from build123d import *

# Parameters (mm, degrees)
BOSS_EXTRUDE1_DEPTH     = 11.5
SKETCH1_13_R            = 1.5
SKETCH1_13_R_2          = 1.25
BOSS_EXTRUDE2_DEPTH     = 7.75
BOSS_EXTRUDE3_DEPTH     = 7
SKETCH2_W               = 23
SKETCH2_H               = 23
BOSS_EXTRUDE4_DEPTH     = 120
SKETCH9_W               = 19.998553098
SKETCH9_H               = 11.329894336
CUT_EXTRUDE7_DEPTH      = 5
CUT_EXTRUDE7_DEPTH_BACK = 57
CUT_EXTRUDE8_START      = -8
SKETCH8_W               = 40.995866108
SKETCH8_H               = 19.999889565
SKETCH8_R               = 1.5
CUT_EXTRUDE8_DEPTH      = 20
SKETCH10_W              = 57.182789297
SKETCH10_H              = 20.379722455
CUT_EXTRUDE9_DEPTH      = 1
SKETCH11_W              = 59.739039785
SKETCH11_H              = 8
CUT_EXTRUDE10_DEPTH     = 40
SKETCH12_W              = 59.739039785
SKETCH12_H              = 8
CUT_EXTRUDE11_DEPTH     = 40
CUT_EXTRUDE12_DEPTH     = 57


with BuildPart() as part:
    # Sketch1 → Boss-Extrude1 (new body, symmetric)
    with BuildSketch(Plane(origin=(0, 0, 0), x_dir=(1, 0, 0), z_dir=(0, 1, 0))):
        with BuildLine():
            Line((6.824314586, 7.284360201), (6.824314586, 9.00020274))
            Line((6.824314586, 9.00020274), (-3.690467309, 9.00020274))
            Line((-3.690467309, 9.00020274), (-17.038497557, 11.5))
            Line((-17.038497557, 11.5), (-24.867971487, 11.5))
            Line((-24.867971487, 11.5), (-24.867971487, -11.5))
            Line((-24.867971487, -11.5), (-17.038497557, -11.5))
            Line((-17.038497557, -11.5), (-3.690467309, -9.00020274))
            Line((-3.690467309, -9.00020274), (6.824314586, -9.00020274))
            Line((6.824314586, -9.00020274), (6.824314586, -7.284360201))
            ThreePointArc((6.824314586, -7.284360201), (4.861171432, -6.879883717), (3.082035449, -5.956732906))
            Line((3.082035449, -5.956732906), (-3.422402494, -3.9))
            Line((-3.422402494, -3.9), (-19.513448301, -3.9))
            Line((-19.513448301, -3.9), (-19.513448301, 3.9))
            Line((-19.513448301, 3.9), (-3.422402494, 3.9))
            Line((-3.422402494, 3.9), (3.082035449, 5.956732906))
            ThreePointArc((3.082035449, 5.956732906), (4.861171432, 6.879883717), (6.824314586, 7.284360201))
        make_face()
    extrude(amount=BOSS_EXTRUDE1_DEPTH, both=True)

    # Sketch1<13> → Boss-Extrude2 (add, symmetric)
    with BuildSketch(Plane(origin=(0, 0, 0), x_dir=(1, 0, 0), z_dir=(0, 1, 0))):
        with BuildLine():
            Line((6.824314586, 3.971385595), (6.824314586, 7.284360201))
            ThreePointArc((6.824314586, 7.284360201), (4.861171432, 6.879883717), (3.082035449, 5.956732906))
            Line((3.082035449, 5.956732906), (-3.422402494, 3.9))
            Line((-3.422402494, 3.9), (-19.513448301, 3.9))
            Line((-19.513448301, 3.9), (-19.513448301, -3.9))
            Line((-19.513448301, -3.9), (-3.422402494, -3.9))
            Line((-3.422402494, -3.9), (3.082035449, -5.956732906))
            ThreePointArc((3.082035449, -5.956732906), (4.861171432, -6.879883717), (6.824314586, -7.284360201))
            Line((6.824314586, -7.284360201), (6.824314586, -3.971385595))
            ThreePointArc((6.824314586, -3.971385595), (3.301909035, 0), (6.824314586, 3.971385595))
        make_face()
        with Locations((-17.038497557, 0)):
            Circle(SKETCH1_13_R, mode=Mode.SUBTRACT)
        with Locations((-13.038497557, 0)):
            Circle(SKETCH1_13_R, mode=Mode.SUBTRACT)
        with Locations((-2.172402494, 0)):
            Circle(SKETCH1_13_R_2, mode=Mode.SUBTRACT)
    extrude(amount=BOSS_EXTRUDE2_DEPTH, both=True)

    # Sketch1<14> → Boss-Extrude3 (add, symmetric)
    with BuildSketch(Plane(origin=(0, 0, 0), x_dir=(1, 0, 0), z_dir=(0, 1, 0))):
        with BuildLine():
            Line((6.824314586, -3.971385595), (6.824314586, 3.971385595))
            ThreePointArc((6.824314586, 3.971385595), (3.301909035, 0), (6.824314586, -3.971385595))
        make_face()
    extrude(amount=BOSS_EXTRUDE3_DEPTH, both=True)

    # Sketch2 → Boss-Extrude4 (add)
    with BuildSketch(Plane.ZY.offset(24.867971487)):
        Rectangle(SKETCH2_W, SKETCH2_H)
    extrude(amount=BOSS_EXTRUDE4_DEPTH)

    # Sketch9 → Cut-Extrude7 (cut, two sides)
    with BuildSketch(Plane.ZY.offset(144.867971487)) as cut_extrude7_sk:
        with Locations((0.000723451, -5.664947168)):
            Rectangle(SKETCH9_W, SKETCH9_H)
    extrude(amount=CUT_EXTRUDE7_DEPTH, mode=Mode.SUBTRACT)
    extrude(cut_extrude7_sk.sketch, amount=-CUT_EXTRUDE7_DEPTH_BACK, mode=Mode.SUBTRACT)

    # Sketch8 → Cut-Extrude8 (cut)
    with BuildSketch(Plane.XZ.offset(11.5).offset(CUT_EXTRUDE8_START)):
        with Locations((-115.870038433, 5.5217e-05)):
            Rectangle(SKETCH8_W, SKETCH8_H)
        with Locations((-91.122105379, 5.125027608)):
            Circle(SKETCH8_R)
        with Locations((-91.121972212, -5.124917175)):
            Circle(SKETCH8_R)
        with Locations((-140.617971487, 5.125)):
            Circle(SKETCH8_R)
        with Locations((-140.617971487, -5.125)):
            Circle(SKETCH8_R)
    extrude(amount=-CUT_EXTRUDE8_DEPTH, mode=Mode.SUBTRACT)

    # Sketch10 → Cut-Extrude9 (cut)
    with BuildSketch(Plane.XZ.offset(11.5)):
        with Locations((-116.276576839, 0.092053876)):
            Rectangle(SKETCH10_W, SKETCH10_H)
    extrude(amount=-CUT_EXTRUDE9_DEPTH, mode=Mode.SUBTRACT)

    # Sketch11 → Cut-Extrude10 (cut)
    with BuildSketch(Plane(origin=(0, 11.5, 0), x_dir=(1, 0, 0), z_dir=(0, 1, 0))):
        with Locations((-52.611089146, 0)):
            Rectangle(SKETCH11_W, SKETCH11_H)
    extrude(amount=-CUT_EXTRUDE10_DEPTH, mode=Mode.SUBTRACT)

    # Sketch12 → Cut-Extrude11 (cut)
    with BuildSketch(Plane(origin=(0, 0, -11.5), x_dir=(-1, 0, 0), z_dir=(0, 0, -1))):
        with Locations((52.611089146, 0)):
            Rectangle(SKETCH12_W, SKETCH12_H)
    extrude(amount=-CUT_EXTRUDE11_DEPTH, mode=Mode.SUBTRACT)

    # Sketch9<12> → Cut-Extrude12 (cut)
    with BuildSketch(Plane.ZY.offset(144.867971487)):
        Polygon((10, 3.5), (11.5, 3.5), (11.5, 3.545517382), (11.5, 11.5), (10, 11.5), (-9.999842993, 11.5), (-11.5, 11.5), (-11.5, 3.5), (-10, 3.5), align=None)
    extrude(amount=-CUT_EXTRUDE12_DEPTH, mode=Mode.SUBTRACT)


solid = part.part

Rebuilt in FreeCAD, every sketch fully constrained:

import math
import FreeCAD as App
import Part
import Sketcher
from FreeCAD import Vector
Q = App.Units.Quantity

doc = App.newDocument("Part")
body = doc.addObject("PartDesign::Body", "Body")

sketch1 = body.newObject("Sketcher::SketchObject", "Sketch")
sketch1.AttachmentSupport = (doc.getObject("XZ_Plane"), [""])
sketch1.MapMode = "FlatFace"
sketch1.addGeometry([
    Part.LineSegment(Vector(6.824315, -7.28436, 0), Vector(6.824315, -9.000203, 0)),
    Part.LineSegment(Vector(6.824315, -9.000203, 0), Vector(-3.690467, -9.000203, 0)),
    Part.LineSegment(Vector(-3.690467, -9.000203, 0), Vector(-17.038498, -11.5, 0)),
    Part.LineSegment(Vector(-17.038498, -11.5, 0), Vector(-24.867971, -11.5, 0)),
    Part.LineSegment(Vector(-24.867971, -11.5, 0), Vector(-24.867971, 11.5, 0)),
    Part.LineSegment(Vector(-24.867971, 11.5, 0), Vector(-17.038498, 11.5, 0)),
    Part.LineSegment(Vector(-17.038498, 11.5, 0), Vector(-3.690467, 9.000203, 0)),
    Part.LineSegment(Vector(-3.690467, 9.000203, 0), Vector(6.824315, 9.000203, 0)),
    Part.LineSegment(Vector(6.824315, 9.000203, 0), Vector(6.824315, 7.28436, 0)),
    Part.ArcOfCircle(Part.Circle(Vector(7.301909, 0, 0), Vector(0, 0, 1), 7.3), math.radians(93.751192), math.radians(125.314551)),
    Part.LineSegment(Vector(3.082035, 5.956733, 0), Vector(-3.422402, 3.9, 0)),
    Part.LineSegment(Vector(-3.422402, 3.9, 0), Vector(-19.513448, 3.9, 0)),
    Part.LineSegment(Vector(-19.513448, 3.9, 0), Vector(-19.513448, -3.9, 0)),
    Part.LineSegment(Vector(-19.513448, -3.9, 0), Vector(-3.422402, -3.9, 0)),
    Part.LineSegment(Vector(-3.422402, -3.9, 0), Vector(3.082035, -5.956733, 0)),
    Part.ArcOfCircle(Part.Circle(Vector(7.301909, 0, 0), Vector(0, 0, 1), 7.3), math.radians(-125.314551), math.radians(-93.751192)),
], False)
sketch1.addConstraint([
    Sketcher.Constraint("Coincident", 0, 2, 1, 1),
    Sketcher.Constraint("Coincident", 1, 2, 2, 1),
    Sketcher.Constraint("Coincident", 2, 2, 3, 1),
    Sketcher.Constraint("Coincident", 3, 2, 4, 1),
    Sketcher.Constraint("Coincident", 4, 2, 5, 1),
    Sketcher.Constraint("Coincident", 5, 2, 6, 1),
    Sketcher.Constraint("Coincident", 6, 2, 7, 1),
    Sketcher.Constraint("Coincident", 7, 2, 8, 1),
    Sketcher.Constraint("Coincident", 8, 2, 9, 1),
    Sketcher.Constraint("Coincident", 9, 2, 10, 1),
    Sketcher.Constraint("Coincident", 10, 2, 11, 1),
    Sketcher.Constraint("Coincident", 11, 2, 12, 1),
    Sketcher.Constraint("Coincident", 12, 2, 13, 1),
    Sketcher.Constraint("Coincident", 13, 2, 14, 1),
    Sketcher.Constraint("Coincident", 14, 2, 15, 1),
    Sketcher.Constraint("Coincident", 15, 2, 0, 1),
    Sketcher.Constraint("Vertical", 0),
    Sketcher.Constraint("Horizontal", 1),
    Sketcher.Constraint("Horizontal", 3),
    Sketcher.Constraint("Vertical", 4),
    Sketcher.Constraint("Horizontal", 5),
    Sketcher.Constraint("Horizontal", 7),
    Sketcher.Constraint("Vertical", 8),
    Sketcher.Constraint("Horizontal", 11),
    Sketcher.Constraint("Vertical", 12),
    Sketcher.Constraint("Horizontal", 13),
    Sketcher.Constraint("Coincident", 15, 3, 9, 3),
    Sketcher.Constraint("Equal", 9, 15),
    Sketcher.Constraint("Symmetric", 2, 2, 5, 2, -1),
    Sketcher.Constraint("Symmetric", 1, 2, 6, 2, -1),
    Sketcher.Constraint("Symmetric", 10, 2, 13, 2, -1),
    Sketcher.Constraint("Symmetric", 9, 2, 14, 2, -1),
    Sketcher.Constraint("Vertical", 0, 2, 7, 2),
    Sketcher.Constraint("Radius", 9, Q("7.3 mm")),
    Sketcher.Constraint("DistanceY", 4, 1, 4, 2, Q("23 mm")),
    Sketcher.Constraint("DistanceY", 12, 2, 12, 1, Q("7.8 mm")),
    Sketcher.Constraint("DistanceX", 1, 2, 1, 1, Q("10.514782 mm")),
    Sketcher.Constraint("Distance", 2, Q("13.580092 mm")),
    Sketcher.Constraint("DistanceX", 3, 2, 3, 1, Q("7.829474 mm")),
    Sketcher.Constraint("DistanceX", 11, 2, 11, 1, Q("16.091046 mm")),
    Sketcher.Constraint("DistanceY", 0, 2, 0, 1, Q("1.715843 mm")),
    Sketcher.Constraint("DistanceX", -1, 1, 9, 3, Q("7.301909 mm")),
    Sketcher.Constraint("DistanceX", 3, 2, -1, 1, Q("24.867971 mm")),
    Sketcher.Constraint("DistanceX", 11, 2, -1, 1, Q("19.513448 mm")),
    Sketcher.Constraint("DistanceX", 9, 2, 8, 2, Q("3.742279 mm")),
])
pad1 = body.newObject("PartDesign::Pad", "Pad")
pad1.Profile = sketch1
pad1.Length = 23
pad1.Midplane = True

sketch2 = body.newObject("Sketcher::SketchObject", "Sketch001")
sketch2.AttachmentSupport = (doc.getObject("XZ_Plane"), [""])
sketch2.MapMode = "FlatFace"
sketch2.addGeometry([
    Part.LineSegment(Vector(6.824315, -3.971386, 0), Vector(6.824315, -7.28436, 0)),
    Part.ArcOfCircle(Part.Circle(Vector(7.301909, 0, 0), Vector(0, 0, 1), 7.3), math.radians(-125.314551), math.radians(-93.751192)),
    Part.LineSegment(Vector(3.082035, -5.956733, 0), Vector(-3.422402, -3.9, 0)),
    Part.LineSegment(Vector(-3.422402, -3.9, 0), Vector(-19.513448, -3.9, 0)),
    Part.LineSegment(Vector(-19.513448, -3.9, 0), Vector(-19.513448, 3.9, 0)),
    Part.LineSegment(Vector(-19.513448, 3.9, 0), Vector(-3.422402, 3.9, 0)),
    Part.LineSegment(Vector(-3.422402, 3.9, 0), Vector(3.082035, 5.956733, 0)),
    Part.ArcOfCircle(Part.Circle(Vector(7.301909, 0, 0), Vector(0, 0, 1), 7.3), math.radians(93.751192), math.radians(125.314551)),
    Part.LineSegment(Vector(6.824315, 7.28436, 0), Vector(6.824315, 3.971386, 0)),
    Part.ArcOfCircle(Part.Circle(Vector(7.301909, 0, 0), Vector(0, 0, 1), 4), math.radians(96.857396), math.radians(263.142604)),
    Part.Circle(Vector(-17.038498, 0, 0), Vector(0, 0, 1), 1.5),
    Part.Circle(Vector(-13.038498, 0, 0), Vector(0, 0, 1), 1.5),
    Part.Circle(Vector(-2.172402, 0, 0), Vector(0, 0, 1), 1.25),
], False)
sketch2.addConstraint([
    Sketcher.Constraint("Coincident", 0, 2, 1, 2),
    Sketcher.Constraint("Coincident", 1, 1, 2, 1),
    Sketcher.Constraint("Coincident", 2, 2, 3, 1),
    Sketcher.Constraint("Coincident", 3, 2, 4, 1),
    Sketcher.Constraint("Coincident", 4, 2, 5, 1),
    Sketcher.Constraint("Coincident", 5, 2, 6, 1),
    Sketcher.Constraint("Coincident", 6, 2, 7, 2),
    Sketcher.Constraint("Coincident", 7, 1, 8, 1),
    Sketcher.Constraint("Coincident", 8, 2, 9, 1),
    Sketcher.Constraint("Coincident", 9, 2, 0, 1),
    Sketcher.Constraint("Vertical", 0),
    Sketcher.Constraint("Horizontal", 3),
    Sketcher.Constraint("Vertical", 4),
    Sketcher.Constraint("Horizontal", 5),
    Sketcher.Constraint("Vertical", 8),
    Sketcher.Constraint("Coincident", 7, 3, 1, 3),
    Sketcher.Constraint("Coincident", 9, 3, 1, 3),
    Sketcher.Constraint("Equal", 1, 7),
    Sketcher.Constraint("Equal", 10, 11),
    Sketcher.Constraint("Symmetric", 2, 2, 5, 2, -1),
    Sketcher.Constraint("Symmetric", 1, 1, 6, 2, -1),
    Sketcher.Constraint("PointOnObject", 10, 3, -1),
    Sketcher.Constraint("PointOnObject", 11, 3, -1),
    Sketcher.Constraint("PointOnObject", 12, 3, -1),
    Sketcher.Constraint("Vertical", 0, 2, 7, 1),
    Sketcher.Constraint("Diameter", 10, Q("3 mm")),
    Sketcher.Constraint("Radius", 9, Q("4 mm")),
    Sketcher.Constraint("Diameter", 12, Q("2.5 mm")),
    Sketcher.Constraint("Radius", 1, Q("7.3 mm")),
    Sketcher.Constraint("DistanceY", 4, 1, 4, 2, Q("7.8 mm")),
    Sketcher.Constraint("DistanceX", 10, 3, 11, 3, Q("4 mm")),
    Sketcher.Constraint("DistanceX", 2, 2, 12, 3, Q("1.25 mm")),
    Sketcher.Constraint("DistanceX", 3, 2, 3, 1, Q("16.091046 mm")),
    Sketcher.Constraint("DistanceY", 0, 2, 0, 1, Q("3.312975 mm")),
    Sketcher.Constraint("DistanceX", -1, 1, 1, 3, Q("7.301909 mm")),
    Sketcher.Constraint("DistanceX", 3, 2, -1, 1, Q("19.513448 mm")),
    Sketcher.Constraint("DistanceX", 1, 1, 0, 2, Q("3.742279 mm")),
    Sketcher.Constraint("DistanceX", 3, 2, 10, 3, Q("2.474951 mm")),
])
pad2 = body.newObject("PartDesign::Pad", "Pad001")
pad2.Profile = sketch2
pad2.Length = 15.5
pad2.Midplane = True

sketch3 = body.newObject("Sketcher::SketchObject", "Sketch002")
sketch3.AttachmentSupport = (doc.getObject("XZ_Plane"), [""])
sketch3.MapMode = "FlatFace"
sketch3.addGeometry([
    Part.LineSegment(Vector(6.824315, 3.971386, 0), Vector(6.824315, -3.971386, 0)),
    Part.ArcOfCircle(Part.Circle(Vector(7.301909, 0, 0), Vector(0, 0, 1), 4), math.radians(96.857396), math.radians(263.142604)),
], False)
sketch3.addConstraint([
    Sketcher.Constraint("Coincident", 0, 1, 1, 1),
    Sketcher.Constraint("Coincident", 1, 2, 0, 2),
    Sketcher.Constraint("Vertical", 0),
    Sketcher.Constraint("PointOnObject", 1, 3, -1),
    Sketcher.Constraint("Radius", 1, Q("4 mm")),
    Sketcher.Constraint("DistanceY", 0, 2, 0, 1, Q("7.942771 mm")),
    Sketcher.Constraint("DistanceX", -1, 1, 1, 3, Q("7.301909 mm")),
])
pad3 = body.newObject("PartDesign::Pad", "Pad002")
pad3.Profile = sketch3
pad3.Length = 14
pad3.Midplane = True

sketch4 = body.newObject("Sketcher::SketchObject", "Sketch003")
sketch4.AttachmentSupport = (doc.getObject("YZ_Plane"), [""])
sketch4.MapMode = "FlatFace"
sketch4.AttachmentOffset = App.Placement(Vector(0, 0, -24.867971), App.Rotation())
sketch4.addGeometry([
    Part.LineSegment(Vector(11.5, -11.5, 0), Vector(-11.5, -11.5, 0)),
    Part.LineSegment(Vector(-11.5, -11.5, 0), Vector(-11.5, 11.5, 0)),
    Part.LineSegment(Vector(-11.5, 11.5, 0), Vector(11.5, 11.5, 0)),
    Part.LineSegment(Vector(11.5, 11.5, 0), Vector(11.5, -11.5, 0)),
], False)
sketch4.addConstraint([
    Sketcher.Constraint("Coincident", 0, 2, 1, 1),
    Sketcher.Constraint("Coincident", 1, 2, 2, 1),
    Sketcher.Constraint("Coincident", 2, 2, 3, 1),
    Sketcher.Constraint("Coincident", 3, 2, 0, 1),
    Sketcher.Constraint("Horizontal", 0),
    Sketcher.Constraint("Vertical", 1),
    Sketcher.Constraint("Horizontal", 2),
    Sketcher.Constraint("Vertical", 3),
    Sketcher.Constraint("Symmetric", 0, 2, 2, 2, -1, 1),
    Sketcher.Constraint("Equal", 2, 1),
    Sketcher.Constraint("DistanceX", 0, 2, 0, 1, Q("23 mm")),
])
pad4 = body.newObject("PartDesign::Pad", "Pad003")
pad4.Profile = sketch4
pad4.Length = 120
pad4.Reversed = True

sketch5 = body.newObject("Sketcher::SketchObject", "Sketch004")
sketch5.AttachmentSupport = (doc.getObject("YZ_Plane"), [""])
sketch5.MapMode = "FlatFace"
sketch5.AttachmentOffset = App.Placement(Vector(0, 0, -144.867971), App.Rotation())
sketch5.addGeometry([
    Part.LineSegment(Vector(0, -9.998553, 0), Vector(-11.329894, -9.998553, 0)),
    Part.LineSegment(Vector(-11.329894, -9.998553, 0), Vector(-11.329894, 10, 0)),
    Part.LineSegment(Vector(-11.329894, 10, 0), Vector(0, 10, 0)),
    Part.LineSegment(Vector(0, 10, 0), Vector(0, -9.998553, 0)),
], False)
sketch5.addConstraint([
    Sketcher.Constraint("Coincident", 0, 2, 1, 1),
    Sketcher.Constraint("Coincident", 1, 2, 2, 1),
    Sketcher.Constraint("Coincident", 2, 2, 3, 1),
    Sketcher.Constraint("Coincident", 3, 2, 0, 1),
    Sketcher.Constraint("Horizontal", 0),
    Sketcher.Constraint("Vertical", 1),
    Sketcher.Constraint("Horizontal", 2),
    Sketcher.Constraint("Vertical", 3),
    Sketcher.Constraint("PointOnObject", 2, 2, -2),
    Sketcher.Constraint("DistanceY", -1, 1, 1, 2, Q("10 mm")),
    Sketcher.Constraint("DistanceX", 0, 2, 0, 1, Q("11.329894 mm")),
    Sketcher.Constraint("DistanceY", 1, 1, 1, 2, Q("19.998553 mm")),
])
pocket1 = body.newObject("PartDesign::Pocket", "Pocket")
pocket1.Profile = sketch5
pocket1.Type = "TwoLengths"
pocket1.Length = 5
pocket1.Length2 = 57

sketch6 = body.newObject("Sketcher::SketchObject", "Sketch005")
sketch6.AttachmentSupport = (doc.getObject("XZ_Plane"), [""])
sketch6.MapMode = "FlatFace"
sketch6.AttachmentOffset = App.Placement(Vector(0, 0, 3.5), App.Rotation())
sketch6.addGeometry([
    Part.LineSegment(Vector(-136.367971, 10, 0), Vector(-136.367971, -9.99989, 0)),
    Part.LineSegment(Vector(-136.367971, -9.99989, 0), Vector(-95.372105, -9.99989, 0)),
    Part.LineSegment(Vector(-95.372105, -9.99989, 0), Vector(-95.372105, 10, 0)),
    Part.LineSegment(Vector(-95.372105, 10, 0), Vector(-136.367971, 10, 0)),
    Part.Circle(Vector(-91.122105, 5.125028, 0), Vector(0, 0, 1), 1.5),
    Part.Circle(Vector(-91.121972, -5.124917, 0), Vector(0, 0, 1), 1.5),
    Part.Circle(Vector(-140.617971, 5.125, 0), Vector(0, 0, 1), 1.5),
    Part.Circle(Vector(-140.617971, -5.125, 0), Vector(0, 0, 1), 1.5),
], False)
sketch6.addConstraint([
    Sketcher.Constraint("Coincident", 0, 2, 1, 1),
    Sketcher.Constraint("Coincident", 1, 2, 2, 1),
    Sketcher.Constraint("Coincident", 2, 2, 3, 1),
    Sketcher.Constraint("Coincident", 3, 2, 0, 1),
    Sketcher.Constraint("Vertical", 0),
    Sketcher.Constraint("Horizontal", 1),
    Sketcher.Constraint("Vertical", 2),
    Sketcher.Constraint("Horizontal", 3),
    Sketcher.Constraint("Equal", 4, 5),
    Sketcher.Constraint("Equal", 5, 6),
    Sketcher.Constraint("Equal", 6, 7),
    Sketcher.Constraint("Symmetric", 6, 3, 7, 3, -1),
    Sketcher.Constraint("Diameter", 4, Q("3 mm")),
    Sketcher.Constraint("DistanceY", -1, 1, 2, 2, Q("10 mm")),
    Sketcher.Constraint("DistanceY", 7, 3, 6, 3, Q("10.25 mm")),
    Sketcher.Constraint("DistanceX", 7, 3, 0, 2, Q("4.25 mm")),
    Sketcher.Constraint("DistanceX", 1, 2, 4, 3, Q("4.25 mm")),
    Sketcher.Constraint("DistanceX", 6, 3, 5, 3, Q("49.495999 mm")),
    Sketcher.Constraint("DistanceY", 0, 2, 0, 1, Q("19.99989 mm")),
    Sketcher.Constraint("DistanceX", 1, 1, 1, 2, Q("40.995866 mm")),
    Sketcher.Constraint("DistanceX", 6, 3, -1, 1, Q("140.617971 mm")),
    Sketcher.Constraint("DistanceY", -1, 1, 4, 3, Q("5.125028 mm")),
    Sketcher.Constraint("DistanceY", 5, 3, -1, 1, Q("5.124917 mm")),
])
pocket2 = body.newObject("PartDesign::Pocket", "Pocket001")
pocket2.Profile = sketch6
pocket2.Length = 20

sketch7 = body.newObject("Sketcher::SketchObject", "Sketch006")
sketch7.AttachmentSupport = (doc.getObject("XZ_Plane"), [""])
sketch7.MapMode = "FlatFace"
sketch7.AttachmentOffset = App.Placement(Vector(0, 0, 11.5), App.Rotation())
sketch7.addGeometry([
    Part.LineSegment(Vector(-144.867971, 10.281915, 0), Vector(-144.867971, -10.097807, 0)),
    Part.LineSegment(Vector(-144.867971, -10.097807, 0), Vector(-87.685182, -10.097807, 0)),
    Part.LineSegment(Vector(-87.685182, -10.097807, 0), Vector(-87.685182, 10.281915, 0)),
    Part.LineSegment(Vector(-87.685182, 10.281915, 0), Vector(-144.867971, 10.281915, 0)),
], False)
sketch7.addConstraint([
    Sketcher.Constraint("Coincident", 0, 2, 1, 1),
    Sketcher.Constraint("Coincident", 1, 2, 2, 1),
    Sketcher.Constraint("Coincident", 2, 2, 3, 1),
    Sketcher.Constraint("Coincident", 3, 2, 0, 1),
    Sketcher.Constraint("Vertical", 0),
    Sketcher.Constraint("Horizontal", 1),
    Sketcher.Constraint("Vertical", 2),
    Sketcher.Constraint("Horizontal", 3),
    Sketcher.Constraint("DistanceX", 1, 1, 1, 2, Q("57.182789 mm")),
    Sketcher.Constraint("DistanceY", 0, 2, 0, 1, Q("20.379722 mm")),
    Sketcher.Constraint("DistanceX", 0, 2, -1, 1, Q("144.867971 mm")),
    Sketcher.Constraint("DistanceY", 0, 2, -1, 1, Q("10.097807 mm")),
])
pocket3 = body.newObject("PartDesign::Pocket", "Pocket002")
pocket3.Profile = sketch7
pocket3.Length = 1

sketch8 = body.newObject("Sketcher::SketchObject", "Sketch007")
sketch8.AttachmentSupport = (doc.getObject("XZ_Plane"), [""])
sketch8.MapMode = "FlatFace"
sketch8.AttachmentOffset = App.Placement(Vector(0, 0, -11.5), App.Rotation())
sketch8.addGeometry([
    Part.LineSegment(Vector(-82.480609, -4, 0), Vector(-82.480609, 4, 0)),
    Part.LineSegment(Vector(-82.480609, 4, 0), Vector(-22.741569, 4, 0)),
    Part.LineSegment(Vector(-22.741569, 4, 0), Vector(-22.741569, -4, 0)),
    Part.LineSegment(Vector(-22.741569, -4, 0), Vector(-82.480609, -4, 0)),
], False)
sketch8.addConstraint([
    Sketcher.Constraint("Coincident", 0, 2, 1, 1),
    Sketcher.Constraint("Coincident", 1, 2, 2, 1),
    Sketcher.Constraint("Coincident", 2, 2, 3, 1),
    Sketcher.Constraint("Coincident", 3, 2, 0, 1),
    Sketcher.Constraint("Vertical", 0),
    Sketcher.Constraint("Horizontal", 1),
    Sketcher.Constraint("Vertical", 2),
    Sketcher.Constraint("Horizontal", 3),
    Sketcher.Constraint("DistanceY", 0, 1, 0, 2, Q("8 mm")),
    Sketcher.Constraint("DistanceY", -1, 1, 0, 2, Q("4 mm")),
    Sketcher.Constraint("DistanceX", 1, 1, 1, 2, Q("59.73904 mm")),
    Sketcher.Constraint("DistanceX", 0, 2, -1, 1, Q("82.480609 mm")),
])
pocket4 = body.newObject("PartDesign::Pocket", "Pocket003")
pocket4.Profile = sketch8
pocket4.Length = 40
pocket4.Reversed = True

sketch9 = body.newObject("Sketcher::SketchObject", "Sketch008")
sketch9.AttachmentSupport = (doc.getObject("XY_Plane"), [""])
sketch9.MapMode = "FlatFace"
sketch9.AttachmentOffset = App.Placement(Vector(0, 0, -11.5), App.Rotation())
sketch9.addGeometry([
    Part.LineSegment(Vector(-22.741569, 4, 0), Vector(-22.741569, -4, 0)),
    Part.LineSegment(Vector(-22.741569, -4, 0), Vector(-82.480609, -4, 0)),
    Part.LineSegment(Vector(-82.480609, -4, 0), Vector(-82.480609, 4, 0)),
    Part.LineSegment(Vector(-82.480609, 4, 0), Vector(-22.741569, 4, 0)),
], False)
sketch9.addConstraint([
    Sketcher.Constraint("Coincident", 0, 2, 1, 1),
    Sketcher.Constraint("Coincident", 1, 2, 2, 1),
    Sketcher.Constraint("Coincident", 2, 2, 3, 1),
    Sketcher.Constraint("Coincident", 3, 2, 0, 1),
    Sketcher.Constraint("Vertical", 0),
    Sketcher.Constraint("Horizontal", 1),
    Sketcher.Constraint("Vertical", 2),
    Sketcher.Constraint("Horizontal", 3),
    Sketcher.Constraint("DistanceY", 0, 2, 0, 1, Q("8 mm")),
    Sketcher.Constraint("DistanceY", 0, 2, -1, 1, Q("4 mm")),
    Sketcher.Constraint("DistanceX", 1, 2, 1, 1, Q("59.73904 mm")),
    Sketcher.Constraint("DistanceX", 0, 2, -1, 1, Q("22.741569 mm")),
])
pocket5 = body.newObject("PartDesign::Pocket", "Pocket004")
pocket5.Profile = sketch9
pocket5.Length = 40
pocket5.Reversed = True

sketch10 = body.newObject("Sketcher::SketchObject", "Sketch009")
sketch10.AttachmentSupport = (doc.getObject("YZ_Plane"), [""])
sketch10.MapMode = "FlatFace"
sketch10.AttachmentOffset = App.Placement(Vector(0, 0, -144.867971), App.Rotation())
sketch10.addGeometry([
    Part.LineSegment(Vector(3.5, 11.5, 0), Vector(11.5, 11.5, 0)),
    Part.LineSegment(Vector(11.5, 11.5, 0), Vector(11.5, -11.5, 0)),
    Part.LineSegment(Vector(11.5, -11.5, 0), Vector(3.5, -11.5, 0)),
    Part.LineSegment(Vector(3.5, -11.5, 0), Vector(3.5, 11.5, 0)),
], False)
sketch10.addConstraint([
    Sketcher.Constraint("Coincident", 0, 2, 1, 1),
    Sketcher.Constraint("Coincident", 1, 2, 2, 1),
    Sketcher.Constraint("Coincident", 2, 2, 3, 1),
    Sketcher.Constraint("Coincident", 3, 2, 0, 1),
    Sketcher.Constraint("Horizontal", 0),
    Sketcher.Constraint("Vertical", 1),
    Sketcher.Constraint("Horizontal", 2),
    Sketcher.Constraint("Vertical", 3),
    Sketcher.Constraint("DistanceX", 0, 1, 0, 2, Q("8 mm")),
    Sketcher.Constraint("DistanceY", 1, 2, 1, 1, Q("23 mm")),
    Sketcher.Constraint("DistanceX", -1, 1, 0, 2, Q("11.5 mm")),
    Sketcher.Constraint("DistanceY", -1, 1, 0, 2, Q("11.5 mm")),
])
pocket6 = body.newObject("PartDesign::Pocket", "Pocket005")
pocket6.Profile = sketch10
pocket6.Length = 57
pocket6.Reversed = True

doc.recompute()
